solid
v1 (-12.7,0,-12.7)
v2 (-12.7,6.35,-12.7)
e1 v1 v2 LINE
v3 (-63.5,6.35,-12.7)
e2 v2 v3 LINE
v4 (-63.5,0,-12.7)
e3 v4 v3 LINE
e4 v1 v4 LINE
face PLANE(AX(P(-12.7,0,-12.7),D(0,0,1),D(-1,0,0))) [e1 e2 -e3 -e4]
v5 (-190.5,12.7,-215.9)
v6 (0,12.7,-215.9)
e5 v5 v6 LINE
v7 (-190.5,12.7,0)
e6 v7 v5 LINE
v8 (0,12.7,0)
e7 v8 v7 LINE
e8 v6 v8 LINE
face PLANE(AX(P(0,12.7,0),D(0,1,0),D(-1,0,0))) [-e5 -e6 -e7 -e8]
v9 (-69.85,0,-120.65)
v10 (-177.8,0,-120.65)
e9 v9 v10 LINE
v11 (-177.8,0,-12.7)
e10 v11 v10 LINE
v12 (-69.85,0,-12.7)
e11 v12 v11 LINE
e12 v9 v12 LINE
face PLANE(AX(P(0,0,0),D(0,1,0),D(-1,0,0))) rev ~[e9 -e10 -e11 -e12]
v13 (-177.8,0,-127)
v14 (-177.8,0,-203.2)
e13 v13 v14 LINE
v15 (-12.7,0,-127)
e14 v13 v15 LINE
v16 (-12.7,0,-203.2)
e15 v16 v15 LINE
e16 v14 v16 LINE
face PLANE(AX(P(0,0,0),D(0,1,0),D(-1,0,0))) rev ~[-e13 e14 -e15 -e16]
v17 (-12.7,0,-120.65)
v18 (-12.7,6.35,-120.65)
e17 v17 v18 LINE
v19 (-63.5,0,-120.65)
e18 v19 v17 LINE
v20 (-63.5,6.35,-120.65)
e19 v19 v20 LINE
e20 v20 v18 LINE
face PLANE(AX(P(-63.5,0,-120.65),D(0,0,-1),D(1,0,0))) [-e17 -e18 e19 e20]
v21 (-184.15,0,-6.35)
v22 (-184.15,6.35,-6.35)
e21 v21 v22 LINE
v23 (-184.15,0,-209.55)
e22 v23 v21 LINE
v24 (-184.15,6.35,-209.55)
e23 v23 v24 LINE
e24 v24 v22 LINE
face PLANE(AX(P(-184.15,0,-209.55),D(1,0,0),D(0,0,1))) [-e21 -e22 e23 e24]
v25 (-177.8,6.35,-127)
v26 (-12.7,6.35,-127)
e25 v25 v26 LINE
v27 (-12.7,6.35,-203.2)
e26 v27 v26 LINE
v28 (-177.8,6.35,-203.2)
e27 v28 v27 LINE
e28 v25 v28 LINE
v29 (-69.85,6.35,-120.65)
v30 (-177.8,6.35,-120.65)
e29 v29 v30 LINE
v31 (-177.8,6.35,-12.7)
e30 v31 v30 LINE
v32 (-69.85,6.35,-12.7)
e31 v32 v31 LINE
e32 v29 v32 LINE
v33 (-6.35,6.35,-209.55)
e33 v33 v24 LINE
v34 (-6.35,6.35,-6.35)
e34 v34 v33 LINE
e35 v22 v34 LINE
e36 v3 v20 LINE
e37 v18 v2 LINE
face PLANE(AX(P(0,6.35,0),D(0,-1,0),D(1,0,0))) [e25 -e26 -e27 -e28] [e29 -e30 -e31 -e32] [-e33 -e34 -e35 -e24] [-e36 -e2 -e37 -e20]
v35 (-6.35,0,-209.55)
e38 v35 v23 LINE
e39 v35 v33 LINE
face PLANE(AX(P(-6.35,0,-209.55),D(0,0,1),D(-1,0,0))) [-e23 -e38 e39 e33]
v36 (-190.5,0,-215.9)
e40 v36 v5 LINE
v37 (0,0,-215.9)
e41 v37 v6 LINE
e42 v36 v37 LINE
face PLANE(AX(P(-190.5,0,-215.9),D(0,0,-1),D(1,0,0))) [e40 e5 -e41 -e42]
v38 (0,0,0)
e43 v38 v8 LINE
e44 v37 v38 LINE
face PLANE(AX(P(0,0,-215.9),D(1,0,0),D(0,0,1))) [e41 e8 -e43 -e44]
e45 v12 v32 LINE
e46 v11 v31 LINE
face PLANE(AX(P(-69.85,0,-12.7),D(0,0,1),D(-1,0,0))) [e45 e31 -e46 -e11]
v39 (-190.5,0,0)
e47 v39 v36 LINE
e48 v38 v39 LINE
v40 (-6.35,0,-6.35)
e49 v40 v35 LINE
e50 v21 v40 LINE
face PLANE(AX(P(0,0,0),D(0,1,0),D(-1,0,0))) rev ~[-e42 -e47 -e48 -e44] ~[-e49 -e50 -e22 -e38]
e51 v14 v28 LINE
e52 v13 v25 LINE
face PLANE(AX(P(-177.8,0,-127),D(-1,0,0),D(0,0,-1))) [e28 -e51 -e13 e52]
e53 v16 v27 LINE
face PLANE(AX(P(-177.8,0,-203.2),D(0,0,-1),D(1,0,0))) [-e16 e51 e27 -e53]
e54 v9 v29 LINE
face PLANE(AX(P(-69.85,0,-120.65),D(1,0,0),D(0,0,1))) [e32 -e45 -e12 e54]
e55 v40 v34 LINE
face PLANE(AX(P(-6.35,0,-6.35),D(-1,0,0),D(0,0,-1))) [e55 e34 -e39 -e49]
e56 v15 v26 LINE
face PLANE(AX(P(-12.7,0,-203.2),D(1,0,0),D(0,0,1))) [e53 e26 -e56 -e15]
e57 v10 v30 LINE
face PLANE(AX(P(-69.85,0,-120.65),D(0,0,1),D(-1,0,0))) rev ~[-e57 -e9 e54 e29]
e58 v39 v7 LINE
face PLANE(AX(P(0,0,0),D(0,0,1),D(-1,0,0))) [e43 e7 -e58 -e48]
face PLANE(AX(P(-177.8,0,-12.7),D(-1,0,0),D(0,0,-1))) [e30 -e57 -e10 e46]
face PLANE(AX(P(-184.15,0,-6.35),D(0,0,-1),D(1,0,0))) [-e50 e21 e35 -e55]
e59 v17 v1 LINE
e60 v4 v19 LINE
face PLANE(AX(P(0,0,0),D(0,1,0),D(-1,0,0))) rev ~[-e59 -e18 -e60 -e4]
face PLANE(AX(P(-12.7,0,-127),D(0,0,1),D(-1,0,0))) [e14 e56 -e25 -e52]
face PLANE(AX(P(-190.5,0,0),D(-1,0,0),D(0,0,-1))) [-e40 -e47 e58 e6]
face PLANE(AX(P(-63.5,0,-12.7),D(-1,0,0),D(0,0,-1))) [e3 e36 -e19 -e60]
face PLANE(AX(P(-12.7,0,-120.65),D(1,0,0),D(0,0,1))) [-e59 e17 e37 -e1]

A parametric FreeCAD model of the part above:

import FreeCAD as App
import Part
import Sketcher
from FreeCAD import Vector
Q = App.Units.Quantity

doc = App.newDocument("Part")
body = doc.addObject("PartDesign::Body", "Body")

# Sketch on XZ plane
sketch1 = doc.addObject("Sketcher::SketchObject", "Sketch")
body.addObject(sketch1)
sketch1.AttachmentSupport = (doc.XZ_Plane, [""])
sketch1.MapMode = "FlatFace"
sketch1.addGeometry(Part.LineSegment(Vector(-190, 0, 0), Vector(0, 0, 0)), False)
sketch1.addGeometry(Part.LineSegment(Vector(0, 0, 0), Vector(0, -216, 0)), False)
sketch1.addGeometry(Part.LineSegment(Vector(0, -216, 0), Vector(-190, -216, 0)), False)
sketch1.addGeometry(Part.LineSegment(Vector(-190, -216, 0), Vector(-190, 0, 0)), False)
sketch1.addConstraint(Sketcher.Constraint("Coincident", 0, 2, 1, 1))
sketch1.addConstraint(Sketcher.Constraint("Coincident", 1, 2, 2, 1))
sketch1.addConstraint(Sketcher.Constraint("Coincident", 2, 2, 3, 1))
sketch1.addConstraint(Sketcher.Constraint("Coincident", 3, 2, 0, 1))
sketch1.addConstraint(Sketcher.Constraint("Horizontal", 0))
sketch1.addConstraint(Sketcher.Constraint("Vertical", 1))
sketch1.addConstraint(Sketcher.Constraint("Horizontal", 2))
sketch1.addConstraint(Sketcher.Constraint("Vertical", 3))
sketch1.addConstraint(Sketcher.Constraint("Coincident", 0, 2, -1, 1))
sketch1.addConstraint(Sketcher.Constraint("DistanceX", 0, 1, 0, 2, Q("7.5 in")))
sketch1.addConstraint(Sketcher.Constraint("DistanceY", 1, 2, 1, 1, Q("8.5 in")))
pad1 = doc.addObject("PartDesign::Pad", "Pad")
body.addObject(pad1)
pad1.Profile = sketch1
pad1.Length = Q("0.5 in")
pad1.Reversed = True

# Sketch on XZ plane
sketch2 = doc.addObject("Sketcher::SketchObject", "Sketch001")
body.addObject(sketch2)
sketch2.AttachmentSupport = (doc.XZ_Plane, [""])
sketch2.MapMode = "FlatFace"
sketch2.addGeometry(Part.LineSegment(Vector(-184, -6, 0), Vector(-184, -210, 0)), False)
sketch2.addGeometry(Part.LineSegment(Vector(-184, -210, 0), Vector(-6, -210, 0)), False)
sketch2.addGeometry(Part.LineSegment(Vector(-6, -210, 0), Vector(-6, -6, 0)), False)
sketch2.addGeometry(Part.LineSegment(Vector(-6, -6, 0), Vector(-184, -6, 0)), False)
sketch2.addGeometry(Part.LineSegment(Vector(-13, -203, 0), Vector(-178, -203, 0)), False)
sketch2.addGeometry(Part.LineSegment(Vector(-178, -203, 0), Vector(-178, -127, 0)), False)
sketch2.addGeometry(Part.LineSegment(Vector(-178, -127, 0), Vector(-13, -127, 0)), False)
sketch2.addGeometry(Part.LineSegment(Vector(-13, -127, 0), Vector(-13, -203, 0)), False)
sketch2.addGeometry(Part.LineSegment(Vector(-70, -13, 0), Vector(-70, -121, 0)), False)
sketch2.addGeometry(Part.LineSegment(Vector(-70, -121, 0), Vector(-178, -121, 0)), False)
sketch2.addGeometry(Part.LineSegment(Vector(-178, -121, 0), Vector(-178, -13, 0)), False)
sketch2.addGeometry(Part.LineSegment(Vector(-178, -13, 0), Vector(-70, -13, 0)), False)
sketch2.addGeometry(Part.LineSegment(Vector(-64, -13, 0), Vector(-13, -13, 0)), False)
sketch2.addGeometry(Part.LineSegment(Vector(-13, -13, 0), Vector(-13, -121, 0)), False)
sketch2.addGeometry(Part.LineSegment(Vector(-13, -121, 0), Vector(-64, -121, 0)), False)
sketch2.addGeometry(Part.LineSegment(Vector(-64, -121, 0), Vector(-64, -13, 0)), False)
sketch2.addConstraint(Sketcher.Constraint("Coincident", 0, 2, 1, 1))
sketch2.addConstraint(Sketcher.Constraint("Coincident", 1, 2, 2, 1))
sketch2.addConstraint(Sketcher.Constraint("Coincident", 2, 2, 3, 1))
sketch2.addConstraint(Sketcher.Constraint("Coincident", 3, 2, 0, 1))
sketch2.addConstraint(Sketcher.Constraint("Coincident", 4, 2, 5, 1))
sketch2.addConstraint(Sketcher.Constraint("Coincident", 5, 2, 6, 1))
sketch2.addConstraint(Sketcher.Constraint("Coincident", 6, 2, 7, 1))
sketch2.addConstraint(Sketcher.Constraint("Coincident", 7, 2, 4, 1))
sketch2.addConstraint(Sketcher.Constraint("Coincident", 8, 2, 9, 1))
sketch2.addConstraint(Sketcher.Constraint("Coincident", 9, 2, 10, 1))
sketch2.addConstraint(Sketcher.Constraint("Coincident", 10, 2, 11, 1))
sketch2.addConstraint(Sketcher.Constraint("Coincident", 11, 2, 8, 1))
sketch2.addConstraint(Sketcher.Constraint("Coincident", 12, 2, 13, 1))
sketch2.addConstraint(Sketcher.Constraint("Coincident", 13, 2, 14, 1))
sketch2.addConstraint(Sketcher.Constraint("Coincident", 14, 2, 15, 1))
sketch2.addConstraint(Sketcher.Constraint("Coincident", 15, 2, 12, 1))
sketch2.addConstraint(Sketcher.Constraint("Vertical", 0))
sketch2.addConstraint(Sketcher.Constraint("Horizontal", 1))
sketch2.addConstraint(Sketcher.Constraint("Vertical", 2))
sketch2.addConstraint(Sketcher.Constraint("Horizontal", 3))
sketch2.addConstraint(Sketcher.Constraint("Horizontal", 4))
sketch2.addConstraint(Sketcher.Constraint("Vertical", 5))
sketch2.addConstraint(Sketcher.Constraint("Horizontal", 6))
sketch2.addConstraint(Sketcher.Constraint("Vertical", 7))
sketch2.addConstraint(Sketcher.Constraint("Vertical", 8))
sketch2.addConstraint(Sketcher.Constraint("Horizontal", 9))
sketch2.addConstraint(Sketcher.Constraint("Vertical", 10))
sketch2.addConstraint(Sketcher.Constraint("Horizontal", 11))
sketch2.addConstraint(Sketcher.Constraint("Horizontal", 12))
sketch2.addConstraint(Sketcher.Constraint("Vertical", 13))
sketch2.addConstraint(Sketcher.Constraint("Horizontal", 14))
sketch2.addConstraint(Sketcher.Constraint("Vertical", 15))
sketch2.addConstraint(Sketcher.Constraint("Horizontal", 11, 2, 12, 2))
sketch2.addConstraint(Sketcher.Constraint("Horizontal", 9, 2, 13, 2))
sketch2.addConstraint(Sketcher.Constraint("Vertical", 5, 2, 9, 2))
sketch2.addConstraint(Sketcher.Constraint("Vertical", 7, 2, 12, 2))
sketch2.addConstraint(Sketcher.Constraint("Equal", 11, 8))
sketch2.addConstraint(Sketcher.Constraint("DistanceX", 9, 2, 9, 1, Q("4.25 in")))
sketch2.addConstraint(Sketcher.Constraint("DistanceX", 1, 1, 1, 2, Q("7 in")))
sketch2.addConstraint(Sketcher.Constraint("DistanceX", 12, 1, 12, 2, Q("2 in")))
sketch2.addConstraint(Sketcher.Constraint("DistanceY", 0, 2, 0, 1, Q("8 in")))
sketch2.addConstraint(Sketcher.Constraint("DistanceY", 5, 1, 5, 2, Q("3 in")))
sketch2.addConstraint(Sketcher.Constraint("DistanceX", 1, 2, -1, 1, Q("0.25 in")))
sketch2.addConstraint(Sketcher.Constraint("DistanceY", 2, 2, -1, 1, Q("0.25 in")))
sketch2.addConstraint(Sketcher.Constraint("DistanceX", 0, 2, 4, 2, Q("0.25 in")))
sketch2.addConstraint(Sketcher.Constraint("DistanceY", 0, 2, 4, 2, Q("0.25 in")))
sketch2.addConstraint(Sketcher.Constraint("DistanceX", 6, 2, 1, 2, Q("0.25 in")))
sketch2.addConstraint(Sketcher.Constraint("DistanceY", 6, 2, 8, 2, Q("0.25 in")))
pocket1 = doc.addObject("PartDesign::Pocket", "Pocket")
body.addObject(pocket1)
pocket1.Profile = sketch2
pocket1.Length = Q("0.25 in")

doc.recompute()
